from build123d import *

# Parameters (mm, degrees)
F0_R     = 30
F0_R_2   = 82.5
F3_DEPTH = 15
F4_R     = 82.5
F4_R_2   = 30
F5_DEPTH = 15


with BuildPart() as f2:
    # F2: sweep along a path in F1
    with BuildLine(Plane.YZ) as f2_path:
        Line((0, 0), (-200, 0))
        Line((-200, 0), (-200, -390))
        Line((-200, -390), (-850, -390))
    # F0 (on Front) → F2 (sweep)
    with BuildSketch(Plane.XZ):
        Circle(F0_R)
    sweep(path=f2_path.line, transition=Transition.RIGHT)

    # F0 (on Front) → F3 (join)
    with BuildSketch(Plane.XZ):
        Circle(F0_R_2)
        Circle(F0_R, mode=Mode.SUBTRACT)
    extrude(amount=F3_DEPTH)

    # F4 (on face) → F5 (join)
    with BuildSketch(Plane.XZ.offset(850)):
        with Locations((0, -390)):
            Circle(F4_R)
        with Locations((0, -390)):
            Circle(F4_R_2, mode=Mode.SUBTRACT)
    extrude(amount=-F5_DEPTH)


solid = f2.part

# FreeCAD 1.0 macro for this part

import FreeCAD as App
import Part
import Sketcher
from FreeCAD import Vector
Q = App.Units.Quantity

doc = App.newDocument("Part")
body = doc.addObject("PartDesign::Body", "Body")

sketch1 = doc.addObject("Sketcher::SketchObject", "Sketch")
body.addObject(sketch1)
sketch1.AttachmentSupport = (doc.XZ_Plane, [""])
sketch1.MapMode = "FlatFace"
sketch1.addGeometry(Part.Circle(Vector(0, 0, 0), Vector(0, 0, 1), 30), False)
sketch1.addConstraint(Sketcher.Constraint("Coincident", 0, 3, -1, 1))
sketch1.addConstraint(Sketcher.Constraint("Diameter", 0, Q("60 mm")))

sketch2 = doc.addObject("Sketcher::SketchObject", "Sketch001")
body.addObject(sketch2)
sketch2.AttachmentSupport = (doc.YZ_Plane, [""])
sketch2.MapMode = "FlatFace"
sketch2.addGeometry(Part.LineSegment(Vector(0, 0, 0), Vector(-200, 0, 0)), False)
sketch2.addGeometry(Part.LineSegment(Vector(-200, 0, 0), Vector(-200, -390, 0)), False)
sketch2.addGeometry(Part.LineSegment(Vector(-200, -390, 0), Vector(-850, -390, 0)), False)
sketch2.addConstraint(Sketcher.Constraint("Coincident", 0, 2, 1, 1))
sketch2.addConstraint(Sketcher.Constraint("Coincident", 1, 2, 2, 1))
sketch2.addConstraint(Sketcher.Constraint("Horizontal", 0))
sketch2.addConstraint(Sketcher.Constraint("Vertical", 1))
sketch2.addConstraint(Sketcher.Constraint("Horizontal", 2))
sketch2.addConstraint(Sketcher.Constraint("Coincident", 0, 1, -1, 1))
sketch2.addConstraint(Sketcher.Constraint("DistanceX", 0, 2, 0, 1, Q("200 mm")))
sketch2.addConstraint(Sketcher.Constraint("DistanceX", 2, 2, 2, 1, Q("650 mm")))
sketch2.addConstraint(Sketcher.Constraint("DistanceY", 1, 2, 1, 1, Q("390 mm")))
doc.recompute()

additivepipe = doc.addObject("PartDesign::AdditivePipe", "AdditivePipe")
body.addObject(additivepipe)
additivepipe.Profile = sketch1
additivepipe.Spine = (sketch2, ["Edge1", "Edge2", "Edge3"])
additivepipe.Transition = "Right corner"

sketch3 = doc.addObject("Sketcher::SketchObject", "Sketch002")
body.addObject(sketch3)
sketch3.AttachmentSupport = (doc.XZ_Plane, [""])
sketch3.MapMode = "FlatFace"
sketch3.addGeometry(Part.Circle(Vector(0, 0, 0), Vector(0, 0, 1), 82), False)
sketch3.addGeometry(Part.Circle(Vector(0, 0, 0), Vector(0, 0, 1), 30), False)
sketch3.addConstraint(Sketcher.Constraint("Coincident", 0, 3, -1, 1))
sketch3.addConstraint(Sketcher.Constraint("Coincident", 1, 3, -1, 1))
sketch3.addConstraint(Sketcher.Constraint("Diameter", 0, Q("165 mm")))
sketch3.addConstraint(Sketcher.Constraint("Diameter", 1, Q("60 mm")))
pad1 = doc.addObject("PartDesign::Pad", "Pad")
body.addObject(pad1)
pad1.Profile = sketch3
pad1.Length = 15

sketch4 = doc.addObject("Sketcher::SketchObject", "Sketch003")
body.addObject(sketch4)
sketch4.AttachmentSupport = (doc.XZ_Plane, [""])
sketch4.MapMode = "FlatFace"
sketch4.AttachmentOffset = App.Placement(Vector(0, 0, 850), App.Rotation())
sketch4.addGeometry(Part.Circle(Vector(0, -390, 0), Vector(0, 0, 1), 82), False)
sketch4.addGeometry(Part.Circle(Vector(0, -390, 0), Vector(0, 0, 1), 30), False)
sketch4.addConstraint(Sketcher.Constraint("Coincident", 1, 3, 0, 3))
sketch4.addConstraint(Sketcher.Constraint("PointOnObject", 0, 3, -2))
sketch4.addConstraint(Sketcher.Constraint("Diameter", 0, Q("165 mm")))
sketch4.addConstraint(Sketcher.Constraint("Diameter", 1, Q("60 mm")))
sketch4.addConstraint(Sketcher.Constraint("DistanceY", 0, 3, -1, 1, Q("390 mm")))
pad2 = doc.addObject("PartDesign::Pad", "Pad001")
body.addObject(pad2)
pad2.Profile = sketch4
pad2.Length = 15
pad2.Reversed = True

doc.recompute()
